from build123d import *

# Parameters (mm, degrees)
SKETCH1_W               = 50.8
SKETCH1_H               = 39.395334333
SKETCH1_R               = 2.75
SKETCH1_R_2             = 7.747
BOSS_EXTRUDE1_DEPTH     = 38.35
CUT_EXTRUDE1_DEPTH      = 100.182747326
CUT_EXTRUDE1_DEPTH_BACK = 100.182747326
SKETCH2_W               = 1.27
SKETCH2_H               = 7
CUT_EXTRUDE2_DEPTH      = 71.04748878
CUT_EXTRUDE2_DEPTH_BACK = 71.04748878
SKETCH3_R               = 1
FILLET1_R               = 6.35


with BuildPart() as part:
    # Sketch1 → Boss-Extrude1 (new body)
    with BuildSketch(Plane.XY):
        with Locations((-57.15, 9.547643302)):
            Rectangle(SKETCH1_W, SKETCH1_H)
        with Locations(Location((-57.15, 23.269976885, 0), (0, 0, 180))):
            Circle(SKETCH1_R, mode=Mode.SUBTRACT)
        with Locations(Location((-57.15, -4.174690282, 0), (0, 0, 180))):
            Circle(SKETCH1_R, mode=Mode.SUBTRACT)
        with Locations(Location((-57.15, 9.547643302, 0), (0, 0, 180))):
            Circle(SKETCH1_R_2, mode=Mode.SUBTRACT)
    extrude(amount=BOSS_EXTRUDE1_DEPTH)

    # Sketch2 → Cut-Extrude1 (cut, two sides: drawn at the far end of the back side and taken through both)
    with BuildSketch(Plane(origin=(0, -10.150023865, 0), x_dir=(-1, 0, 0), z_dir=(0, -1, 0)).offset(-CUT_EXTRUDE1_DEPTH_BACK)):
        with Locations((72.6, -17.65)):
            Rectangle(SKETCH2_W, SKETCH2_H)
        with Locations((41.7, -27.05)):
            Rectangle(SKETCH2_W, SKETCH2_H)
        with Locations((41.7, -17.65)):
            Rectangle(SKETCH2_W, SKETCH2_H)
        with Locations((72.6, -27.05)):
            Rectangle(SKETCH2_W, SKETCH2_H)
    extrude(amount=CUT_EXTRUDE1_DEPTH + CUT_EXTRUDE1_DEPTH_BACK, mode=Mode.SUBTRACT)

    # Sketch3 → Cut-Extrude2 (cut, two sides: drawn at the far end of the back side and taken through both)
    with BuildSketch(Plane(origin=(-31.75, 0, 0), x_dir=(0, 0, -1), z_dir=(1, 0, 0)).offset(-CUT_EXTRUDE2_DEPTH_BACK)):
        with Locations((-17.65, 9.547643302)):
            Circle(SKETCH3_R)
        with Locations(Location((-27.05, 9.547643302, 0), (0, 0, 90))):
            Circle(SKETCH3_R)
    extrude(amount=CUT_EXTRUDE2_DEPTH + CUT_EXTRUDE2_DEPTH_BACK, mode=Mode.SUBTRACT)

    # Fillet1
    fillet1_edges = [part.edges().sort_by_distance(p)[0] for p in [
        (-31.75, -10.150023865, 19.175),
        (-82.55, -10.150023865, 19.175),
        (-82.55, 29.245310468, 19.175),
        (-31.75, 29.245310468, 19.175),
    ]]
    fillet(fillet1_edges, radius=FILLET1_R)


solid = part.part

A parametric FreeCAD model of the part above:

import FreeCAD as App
import Part
import Sketcher
from FreeCAD import Vector
Q = App.Units.Quantity


def edges_at(feature, points):
    """Names of the edges that pass closest to the given points."""
    edges = feature.Shape.Edges
    near = lambda p: min(range(len(edges)), key=lambda i: edges[i].distToShape(Part.Vertex(*p))[0])
    return sorted({f"Edge{near(p) + 1}" for p in points})


def add_polygon(sketch, points):
    """Adds a closed chain of lines whose ends are joined by coincident constraints."""
    first, n = sketch.GeometryCount, len(points)
    for a, b in zip(points, points[1:] + points[:1]):
        sketch.addGeometry(Part.LineSegment(App.Vector(*a, 0), App.Vector(*b, 0)), False)
    for i in range(n):
        sketch.addConstraint(Sketcher.Constraint("Coincident", first + i, 2, first + (i + 1) % n, 1))

doc = App.newDocument("Part")
params = doc.addObject("Spreadsheet::Sheet", "Params")
for row, (alias, value) in enumerate([
    ("sketch1_diameter", "0.61 in"),
    ("sketch1_width", "2 in"),
    ("pad1_length", "38.35 mm"),
    ("sketch2_width", "0.05 in"),
    ("fillet_radius", "0.25 in"),
], start=1):
    params.set(f"A{row}", alias)
    params.set(f"B{row}", "=" + value)
    params.setAlias(f"B{row}", alias)

body = doc.addObject("PartDesign::Body", "Body")

sketch1 = body.newObject("Sketcher::SketchObject", "Sketch")
sketch1.AttachmentSupport = (doc.getObject("XY_Plane"), [""])
sketch1.MapMode = "FlatFace"
add_polygon(sketch1, [(-82.55, 29.24531), (-82.55, -10.150024), (-31.75, -10.150024), (-31.75, 29.24531)])
sketch1.addGeometry(Part.Circle(Vector(-57.15, -4.17469, 0), Vector(0, 0, 1), 2.75), False)
sketch1.addGeometry(Part.Circle(Vector(-57.15, 9.547643, 0), Vector(0, 0, 1), 7.747), False)
sketch1.addGeometry(Part.Circle(Vector(-57.15, 23.269977, 0), Vector(0, 0, 1), 2.75), False)
sketch1.addConstraint([
    Sketcher.Constraint("Vertical", 0),
    Sketcher.Constraint("Horizontal", 1),
    Sketcher.Constraint("Vertical", 2),
    Sketcher.Constraint("Horizontal", 3),
    Sketcher.Constraint("Equal", 4, 6),
    Sketcher.Constraint("Vertical", 4, 3, 5, 3),
    Sketcher.Constraint("Vertical", 5, 3, 6, 3),
    Sketcher.Constraint("Diameter", 5, Q("0.61 in")),
    Sketcher.Constraint("DistanceX", 1, 1, 1, 2, Q("2 in")),
    Sketcher.Constraint("DistanceX", 0, 2, 4, 3, Q("1 in")),
    Sketcher.Constraint("Diameter", 4, Q("5.5 mm")),
    Sketcher.Constraint("DistanceX", 4, 3, -1, 1, Q("2.25 in")),
    Sketcher.Constraint("DistanceY", 0, 2, 6, 3, Q("33.420001 mm")),
    Sketcher.Constraint("DistanceY", 4, 3, 2, 2, Q("33.420001 mm")),
    Sketcher.Constraint("DistanceY", 0, 2, 0, 1, Q("39.395334 mm")),
    Sketcher.Constraint("DistanceY", 4, 3, -1, 1, Q("4.17469 mm")),
    Sketcher.Constraint("DistanceY", -1, 1, 5, 3, Q("9.547643 mm")),
])
sketch1.setExpression("Constraints[11]", "Params.sketch1_diameter")
sketch1.setExpression("Constraints[12]", "Params.sketch1_width")
pad1 = body.newObject("PartDesign::Pad", "Pad")
pad1.Profile = sketch1
pad1.setExpression("Length", "Params.pad1_length")

sketch2 = body.newObject("Sketcher::SketchObject", "Sketch001")
sketch2.AttachmentSupport = (doc.getObject("XZ_Plane"), [""])
sketch2.MapMode = "FlatFace"
sketch2.AttachmentOffset = App.Placement(Vector(0, 0, 10.150024), App.Rotation())
add_polygon(sketch2, [(-71.965, 14.15), (-71.965, 21.15), (-73.235, 21.15), (-73.235, 14.15)])
add_polygon(sketch2, [(-41.065, 23.55), (-41.065, 30.55), (-42.335, 30.55), (-42.335, 23.55)])
add_polygon(sketch2, [(-41.065, 14.15), (-41.065, 21.15), (-42.335, 21.15), (-42.335, 14.15)])
add_polygon(sketch2, [(-71.965, 23.55), (-71.965, 30.55), (-73.235, 30.55), (-73.235, 23.55)])
sketch2.addConstraint([
    Sketcher.Constraint("Vertical", 0),
    Sketcher.Constraint("Horizontal", 1),
    Sketcher.Constraint("Vertical", 2),
    Sketcher.Constraint("Horizontal", 3),
    Sketcher.Constraint("Vertical", 4),
    Sketcher.Constraint("Horizontal", 5),
    Sketcher.Constraint("Vertical", 6),
    Sketcher.Constraint("Horizontal", 7),
    Sketcher.Constraint("Vertical", 8),
    Sketcher.Constraint("Horizontal", 9),
    Sketcher.Constraint("Vertical", 10),
    Sketcher.Constraint("Horizontal", 11),
    Sketcher.Constraint("Vertical", 12),
    Sketcher.Constraint("Horizontal", 13),
    Sketcher.Constraint("Vertical", 14),
    Sketcher.Constraint("Horizontal", 15),
    Sketcher.Constraint("Horizontal", 1, 2, 8, 2),
    Sketcher.Constraint("Horizontal", 3, 2, 10, 2),
    Sketcher.Constraint("Horizontal", 5, 2, 12, 2),
    Sketcher.Constraint("Horizontal", 7, 2, 14, 2),
    Sketcher.Constraint("Vertical", 7, 2, 8, 2),
    Sketcher.Constraint("Vertical", 6, 2, 9, 2),
    Sketcher.Constraint("Vertical", 3, 2, 12, 2),
    Sketcher.Constraint("Vertical", 2, 2, 13, 2),
    Sketcher.Constraint("Equal", 3, 5),
    Sketcher.Constraint("Equal", 2, 4),
    Sketcher.Constraint("DistanceX", 1, 2, 1, 1, Q("0.05 in")),
    Sketcher.Constraint("DistanceY", 0, 1, 0, 2, Q("7 mm")),
    Sketcher.Constraint("DistanceX", 0, 2, -1, 1, Q("71.965 mm")),
    Sketcher.Constraint("DistanceY", -1, 1, 0, 2, Q("21.15 mm")),
    Sketcher.Constraint("DistanceX", 4, 2, -1, 1, Q("41.065 mm")),
    Sketcher.Constraint("DistanceY", -1, 1, 4, 2, Q("30.55 mm")),
])
sketch2.setExpression("Constraints[42]", "Params.sketch2_width")
pocket1 = body.newObject("PartDesign::Pocket", "Pocket")
pocket1.Profile = sketch2
pocket1.Type = "ThroughAll"
pocket1.Midplane = True

sketch3 = body.newObject("Sketcher::SketchObject", "Sketch002")
sketch3.AttachmentSupport = (doc.getObject("YZ_Plane"), [""])
sketch3.MapMode = "FlatFace"
sketch3.AttachmentOffset = App.Placement(Vector(0, 0, -1.25 * 25.4), App.Rotation())
sketch3.addGeometry([
    Part.Circle(Vector(9.547643, 17.65, 0), Vector(0, 0, 1), 1),
    Part.Circle(Vector(9.547643, 27.05, 0), Vector(0, 0, 1), 1),
], False)
sketch3.addConstraint([
    Sketcher.Constraint("Equal", 0, 1),
    Sketcher.Constraint("Vertical", 0, 3, 1, 3),
    Sketcher.Constraint("Diameter", 0, Q("2 mm")),
    Sketcher.Constraint("DistanceY", -1, 1, 0, 3, Q("17.65 mm")),
    Sketcher.Constraint("DistanceY", -1, 1, 1, 3, Q("27.05 mm")),
    Sketcher.Constraint("DistanceX", -1, 1, 0, 3, Q("9.547643 mm")),
])
pocket2 = body.newObject("PartDesign::Pocket", "Pocket001")
pocket2.Profile = sketch3
pocket2.Type = "ThroughAll"
pocket2.Midplane = True
doc.recompute()

fillet = body.newObject("PartDesign::Fillet", "Fillet")
fillet.Base = (pocket2, edges_at(pocket2, [
    (-31.75, -10.15, 19.175),
    (-82.55, -10.15, 19.175),
    (-82.55, 29.245, 19.175),
    (-31.75, 29.245, 19.175),
]))
fillet.setExpression("Radius", "Params.fillet_radius")

doc.recompute()
